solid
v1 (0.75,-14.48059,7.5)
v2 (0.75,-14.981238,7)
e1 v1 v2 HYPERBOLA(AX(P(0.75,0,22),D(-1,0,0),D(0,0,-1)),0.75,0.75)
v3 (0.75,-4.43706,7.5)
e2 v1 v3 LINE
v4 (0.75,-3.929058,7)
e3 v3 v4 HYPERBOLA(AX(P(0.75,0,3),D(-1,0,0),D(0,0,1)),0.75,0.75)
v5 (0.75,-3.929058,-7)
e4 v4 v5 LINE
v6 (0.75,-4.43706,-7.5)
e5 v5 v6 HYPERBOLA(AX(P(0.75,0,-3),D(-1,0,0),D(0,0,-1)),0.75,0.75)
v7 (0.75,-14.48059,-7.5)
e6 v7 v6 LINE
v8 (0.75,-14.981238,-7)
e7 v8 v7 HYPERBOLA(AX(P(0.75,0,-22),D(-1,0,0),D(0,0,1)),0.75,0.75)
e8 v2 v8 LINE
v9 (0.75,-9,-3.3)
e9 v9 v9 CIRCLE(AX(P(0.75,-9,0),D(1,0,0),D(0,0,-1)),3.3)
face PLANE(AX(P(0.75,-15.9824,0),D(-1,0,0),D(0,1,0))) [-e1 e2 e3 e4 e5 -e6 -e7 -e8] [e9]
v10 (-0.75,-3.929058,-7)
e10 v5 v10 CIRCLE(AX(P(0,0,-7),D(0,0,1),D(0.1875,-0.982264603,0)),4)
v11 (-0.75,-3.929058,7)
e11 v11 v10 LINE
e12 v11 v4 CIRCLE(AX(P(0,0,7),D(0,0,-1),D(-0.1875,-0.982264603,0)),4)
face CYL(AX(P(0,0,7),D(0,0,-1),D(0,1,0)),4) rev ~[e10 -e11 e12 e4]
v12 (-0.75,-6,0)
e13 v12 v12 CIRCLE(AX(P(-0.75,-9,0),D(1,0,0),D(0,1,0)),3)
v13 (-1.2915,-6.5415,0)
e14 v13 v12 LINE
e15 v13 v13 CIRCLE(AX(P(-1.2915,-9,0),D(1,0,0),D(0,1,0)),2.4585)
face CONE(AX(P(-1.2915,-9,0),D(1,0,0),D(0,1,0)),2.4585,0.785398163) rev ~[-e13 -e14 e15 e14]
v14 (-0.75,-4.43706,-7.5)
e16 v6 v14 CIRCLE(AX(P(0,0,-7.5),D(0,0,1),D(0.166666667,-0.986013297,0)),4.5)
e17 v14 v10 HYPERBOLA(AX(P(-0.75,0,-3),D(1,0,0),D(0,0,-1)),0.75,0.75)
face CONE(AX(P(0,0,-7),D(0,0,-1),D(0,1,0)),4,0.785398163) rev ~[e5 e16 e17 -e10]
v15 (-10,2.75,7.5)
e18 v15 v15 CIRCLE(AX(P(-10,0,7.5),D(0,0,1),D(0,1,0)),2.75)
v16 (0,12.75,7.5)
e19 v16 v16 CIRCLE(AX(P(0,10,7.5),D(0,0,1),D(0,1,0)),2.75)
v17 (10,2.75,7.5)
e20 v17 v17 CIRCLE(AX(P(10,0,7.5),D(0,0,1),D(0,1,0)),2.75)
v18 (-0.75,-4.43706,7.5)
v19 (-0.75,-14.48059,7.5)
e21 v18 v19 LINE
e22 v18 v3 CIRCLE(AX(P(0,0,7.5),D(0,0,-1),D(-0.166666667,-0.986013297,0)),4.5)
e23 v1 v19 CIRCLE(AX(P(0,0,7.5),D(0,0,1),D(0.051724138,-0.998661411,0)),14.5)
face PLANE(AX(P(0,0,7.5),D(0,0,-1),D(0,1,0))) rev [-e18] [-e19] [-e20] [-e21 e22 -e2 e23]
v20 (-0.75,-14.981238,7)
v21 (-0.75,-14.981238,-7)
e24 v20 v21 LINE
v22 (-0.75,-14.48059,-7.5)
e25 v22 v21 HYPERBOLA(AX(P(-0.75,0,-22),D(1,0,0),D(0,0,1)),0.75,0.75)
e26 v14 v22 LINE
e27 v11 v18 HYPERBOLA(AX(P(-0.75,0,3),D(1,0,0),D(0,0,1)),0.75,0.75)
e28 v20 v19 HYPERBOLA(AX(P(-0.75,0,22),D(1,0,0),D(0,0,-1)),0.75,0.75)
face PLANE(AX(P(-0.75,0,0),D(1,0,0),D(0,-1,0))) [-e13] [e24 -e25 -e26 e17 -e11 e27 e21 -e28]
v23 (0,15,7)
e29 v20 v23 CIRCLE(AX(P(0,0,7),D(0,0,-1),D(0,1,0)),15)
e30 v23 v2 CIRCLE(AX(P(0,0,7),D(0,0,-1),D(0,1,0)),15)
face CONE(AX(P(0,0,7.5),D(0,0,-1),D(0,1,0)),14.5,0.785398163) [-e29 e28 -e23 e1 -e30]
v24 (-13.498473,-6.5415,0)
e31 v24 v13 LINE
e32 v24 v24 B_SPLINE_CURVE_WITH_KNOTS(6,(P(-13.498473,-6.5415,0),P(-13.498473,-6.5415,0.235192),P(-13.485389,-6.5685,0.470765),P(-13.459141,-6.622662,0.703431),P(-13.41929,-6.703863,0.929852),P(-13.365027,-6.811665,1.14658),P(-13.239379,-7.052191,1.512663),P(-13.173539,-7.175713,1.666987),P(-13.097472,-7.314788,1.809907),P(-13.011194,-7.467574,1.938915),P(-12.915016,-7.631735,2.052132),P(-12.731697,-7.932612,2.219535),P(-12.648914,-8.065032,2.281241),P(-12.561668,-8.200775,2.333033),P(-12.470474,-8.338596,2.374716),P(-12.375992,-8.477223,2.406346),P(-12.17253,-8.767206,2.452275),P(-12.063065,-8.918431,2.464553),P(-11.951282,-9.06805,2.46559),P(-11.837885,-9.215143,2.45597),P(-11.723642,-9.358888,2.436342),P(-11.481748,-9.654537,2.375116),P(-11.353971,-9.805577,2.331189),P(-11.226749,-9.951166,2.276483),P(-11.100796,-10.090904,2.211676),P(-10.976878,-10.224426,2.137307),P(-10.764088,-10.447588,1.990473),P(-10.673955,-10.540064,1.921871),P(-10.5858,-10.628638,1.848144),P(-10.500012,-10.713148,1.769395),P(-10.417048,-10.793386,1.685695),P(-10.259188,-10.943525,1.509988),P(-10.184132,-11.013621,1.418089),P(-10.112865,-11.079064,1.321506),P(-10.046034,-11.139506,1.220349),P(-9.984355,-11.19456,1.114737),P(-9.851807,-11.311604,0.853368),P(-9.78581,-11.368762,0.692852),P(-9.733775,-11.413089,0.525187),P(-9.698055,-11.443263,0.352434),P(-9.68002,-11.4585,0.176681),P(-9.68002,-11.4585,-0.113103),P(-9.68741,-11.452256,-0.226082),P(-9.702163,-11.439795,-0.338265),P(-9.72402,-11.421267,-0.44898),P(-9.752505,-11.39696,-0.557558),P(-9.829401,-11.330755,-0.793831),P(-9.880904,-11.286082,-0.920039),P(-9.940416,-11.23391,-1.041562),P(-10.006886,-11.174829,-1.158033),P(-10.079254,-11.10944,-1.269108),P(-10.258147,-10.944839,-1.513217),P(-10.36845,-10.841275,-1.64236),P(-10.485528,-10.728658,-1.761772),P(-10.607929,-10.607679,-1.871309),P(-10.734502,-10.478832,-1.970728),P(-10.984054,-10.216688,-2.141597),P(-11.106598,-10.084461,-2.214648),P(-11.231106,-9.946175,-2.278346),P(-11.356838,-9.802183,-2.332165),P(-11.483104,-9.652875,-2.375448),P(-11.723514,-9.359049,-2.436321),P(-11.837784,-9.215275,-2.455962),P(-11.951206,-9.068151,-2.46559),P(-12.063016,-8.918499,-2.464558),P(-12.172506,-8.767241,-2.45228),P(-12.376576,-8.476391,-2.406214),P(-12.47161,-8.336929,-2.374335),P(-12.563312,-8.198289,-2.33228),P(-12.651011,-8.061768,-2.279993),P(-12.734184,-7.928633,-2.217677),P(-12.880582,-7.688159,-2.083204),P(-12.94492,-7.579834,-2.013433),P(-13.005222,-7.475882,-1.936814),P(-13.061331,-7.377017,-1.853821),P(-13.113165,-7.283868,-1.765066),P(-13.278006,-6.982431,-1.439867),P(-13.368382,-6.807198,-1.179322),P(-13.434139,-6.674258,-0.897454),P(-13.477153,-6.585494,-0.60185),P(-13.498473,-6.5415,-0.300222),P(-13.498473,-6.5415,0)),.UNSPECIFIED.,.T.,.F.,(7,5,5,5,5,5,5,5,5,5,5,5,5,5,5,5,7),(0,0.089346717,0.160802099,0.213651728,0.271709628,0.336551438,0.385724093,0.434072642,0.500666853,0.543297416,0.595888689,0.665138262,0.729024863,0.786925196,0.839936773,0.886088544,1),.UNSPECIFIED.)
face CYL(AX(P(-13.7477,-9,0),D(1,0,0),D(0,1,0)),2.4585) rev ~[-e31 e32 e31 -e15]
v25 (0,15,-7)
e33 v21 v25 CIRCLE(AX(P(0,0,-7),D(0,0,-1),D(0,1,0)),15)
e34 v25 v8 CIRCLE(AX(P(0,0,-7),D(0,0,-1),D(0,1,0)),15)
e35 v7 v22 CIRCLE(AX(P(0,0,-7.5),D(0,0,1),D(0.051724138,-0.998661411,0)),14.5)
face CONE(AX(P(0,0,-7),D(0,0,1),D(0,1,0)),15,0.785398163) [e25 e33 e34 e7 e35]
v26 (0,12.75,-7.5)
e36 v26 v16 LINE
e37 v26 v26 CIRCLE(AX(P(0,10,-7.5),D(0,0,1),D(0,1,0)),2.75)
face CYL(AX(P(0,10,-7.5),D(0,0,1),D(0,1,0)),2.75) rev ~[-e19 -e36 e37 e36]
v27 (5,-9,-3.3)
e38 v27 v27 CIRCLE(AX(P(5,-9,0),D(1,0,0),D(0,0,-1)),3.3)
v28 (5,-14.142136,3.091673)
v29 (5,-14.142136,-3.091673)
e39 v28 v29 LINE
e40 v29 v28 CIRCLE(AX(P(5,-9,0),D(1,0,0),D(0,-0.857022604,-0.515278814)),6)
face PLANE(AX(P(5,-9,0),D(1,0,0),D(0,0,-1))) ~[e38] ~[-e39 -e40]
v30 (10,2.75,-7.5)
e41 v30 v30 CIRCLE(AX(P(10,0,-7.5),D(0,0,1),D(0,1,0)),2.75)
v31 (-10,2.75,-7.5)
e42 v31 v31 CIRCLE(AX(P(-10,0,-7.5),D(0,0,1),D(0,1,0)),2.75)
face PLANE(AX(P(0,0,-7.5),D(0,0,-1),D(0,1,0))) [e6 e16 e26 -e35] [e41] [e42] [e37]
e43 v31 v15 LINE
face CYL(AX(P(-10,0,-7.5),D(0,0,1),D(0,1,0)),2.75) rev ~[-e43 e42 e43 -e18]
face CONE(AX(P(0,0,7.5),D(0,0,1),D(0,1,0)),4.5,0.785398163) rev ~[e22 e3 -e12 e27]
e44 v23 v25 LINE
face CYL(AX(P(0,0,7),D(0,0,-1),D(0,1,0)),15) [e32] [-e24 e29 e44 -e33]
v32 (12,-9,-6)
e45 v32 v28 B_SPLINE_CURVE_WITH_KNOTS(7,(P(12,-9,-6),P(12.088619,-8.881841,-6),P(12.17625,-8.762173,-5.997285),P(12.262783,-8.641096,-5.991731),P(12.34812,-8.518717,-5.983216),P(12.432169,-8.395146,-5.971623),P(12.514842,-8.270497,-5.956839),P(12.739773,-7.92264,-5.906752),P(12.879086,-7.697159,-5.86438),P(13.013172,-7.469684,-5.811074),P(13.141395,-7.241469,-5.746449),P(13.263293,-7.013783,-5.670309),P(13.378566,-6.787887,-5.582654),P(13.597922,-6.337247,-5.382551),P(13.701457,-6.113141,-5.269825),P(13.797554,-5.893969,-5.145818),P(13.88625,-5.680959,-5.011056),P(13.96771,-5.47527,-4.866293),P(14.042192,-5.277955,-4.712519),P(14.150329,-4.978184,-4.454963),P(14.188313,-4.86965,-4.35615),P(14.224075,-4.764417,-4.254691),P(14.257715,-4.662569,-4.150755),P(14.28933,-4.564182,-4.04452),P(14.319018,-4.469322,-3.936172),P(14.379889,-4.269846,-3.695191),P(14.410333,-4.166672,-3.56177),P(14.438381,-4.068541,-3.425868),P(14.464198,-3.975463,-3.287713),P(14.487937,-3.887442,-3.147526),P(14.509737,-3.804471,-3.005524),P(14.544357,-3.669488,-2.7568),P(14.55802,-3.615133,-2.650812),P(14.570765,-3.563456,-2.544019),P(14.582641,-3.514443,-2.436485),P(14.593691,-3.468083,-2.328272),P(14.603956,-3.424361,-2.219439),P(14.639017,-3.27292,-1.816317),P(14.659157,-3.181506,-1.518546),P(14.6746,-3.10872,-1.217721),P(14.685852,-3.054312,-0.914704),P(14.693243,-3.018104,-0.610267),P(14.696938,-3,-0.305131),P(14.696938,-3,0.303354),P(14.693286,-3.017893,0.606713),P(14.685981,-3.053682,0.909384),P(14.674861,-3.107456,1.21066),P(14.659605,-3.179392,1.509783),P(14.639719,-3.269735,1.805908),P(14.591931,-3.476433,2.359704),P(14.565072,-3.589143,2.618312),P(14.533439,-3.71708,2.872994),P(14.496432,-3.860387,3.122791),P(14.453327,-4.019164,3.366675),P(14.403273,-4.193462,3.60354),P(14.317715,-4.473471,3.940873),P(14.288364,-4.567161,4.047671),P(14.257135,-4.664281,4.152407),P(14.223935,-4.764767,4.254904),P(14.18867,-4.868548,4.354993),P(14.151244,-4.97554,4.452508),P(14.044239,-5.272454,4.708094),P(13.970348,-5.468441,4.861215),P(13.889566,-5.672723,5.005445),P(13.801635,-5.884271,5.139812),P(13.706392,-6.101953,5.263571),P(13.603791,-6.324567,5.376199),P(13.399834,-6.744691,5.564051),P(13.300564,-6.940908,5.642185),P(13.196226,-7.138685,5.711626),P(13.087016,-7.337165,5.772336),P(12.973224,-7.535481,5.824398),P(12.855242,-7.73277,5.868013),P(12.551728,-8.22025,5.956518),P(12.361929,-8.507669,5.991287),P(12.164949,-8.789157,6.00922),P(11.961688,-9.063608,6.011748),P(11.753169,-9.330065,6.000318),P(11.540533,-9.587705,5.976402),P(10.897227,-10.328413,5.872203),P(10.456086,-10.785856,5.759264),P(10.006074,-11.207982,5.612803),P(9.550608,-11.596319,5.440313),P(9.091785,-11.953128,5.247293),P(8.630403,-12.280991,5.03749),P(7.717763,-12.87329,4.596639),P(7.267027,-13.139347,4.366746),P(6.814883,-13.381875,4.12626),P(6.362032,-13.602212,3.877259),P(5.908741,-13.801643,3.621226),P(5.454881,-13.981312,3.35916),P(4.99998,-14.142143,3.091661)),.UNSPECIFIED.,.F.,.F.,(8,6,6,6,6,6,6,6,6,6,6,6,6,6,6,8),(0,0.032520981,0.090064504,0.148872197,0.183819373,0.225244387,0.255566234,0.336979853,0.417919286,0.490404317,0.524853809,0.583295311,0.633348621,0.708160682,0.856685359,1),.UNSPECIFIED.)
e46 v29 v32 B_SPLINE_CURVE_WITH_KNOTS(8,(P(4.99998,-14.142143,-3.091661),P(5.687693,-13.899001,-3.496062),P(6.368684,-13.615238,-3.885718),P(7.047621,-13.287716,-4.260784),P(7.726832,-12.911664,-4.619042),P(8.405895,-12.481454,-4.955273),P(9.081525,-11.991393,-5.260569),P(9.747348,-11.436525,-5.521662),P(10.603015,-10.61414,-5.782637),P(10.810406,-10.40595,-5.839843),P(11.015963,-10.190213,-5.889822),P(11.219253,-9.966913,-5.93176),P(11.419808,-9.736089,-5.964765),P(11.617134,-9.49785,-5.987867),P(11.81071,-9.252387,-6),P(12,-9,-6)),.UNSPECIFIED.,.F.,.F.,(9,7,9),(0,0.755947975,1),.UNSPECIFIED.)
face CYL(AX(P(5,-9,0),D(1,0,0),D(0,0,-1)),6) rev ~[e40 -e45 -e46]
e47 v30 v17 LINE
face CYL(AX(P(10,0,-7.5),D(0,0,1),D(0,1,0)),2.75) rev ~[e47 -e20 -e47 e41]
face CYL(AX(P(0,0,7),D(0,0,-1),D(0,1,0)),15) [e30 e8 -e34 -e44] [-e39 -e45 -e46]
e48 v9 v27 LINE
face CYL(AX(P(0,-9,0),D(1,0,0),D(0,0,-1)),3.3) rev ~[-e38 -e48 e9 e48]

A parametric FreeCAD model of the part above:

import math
import FreeCAD as App
import Part
import Sketcher
Q = App.Units.Quantity

doc = App.newDocument("Part")
body = doc.addObject("PartDesign::Body", "Body")

# Sketch on YZ plane
sketch1 = body.newObject("Sketcher::SketchObject", "Sketch")
sketch1.AttachmentSupport = (doc.getObject("YZ_Plane"), [""])
sketch1.MapMode = "FlatFace"
sketch1.addGeometry([
    Part.LineSegment(App.Vector(0, 7.5, 0), App.Vector(0, -7.5, 0)),  # 0
    Part.LineSegment(App.Vector(0, -7.5, 0), App.Vector(14.5, -7.5, 0)),  # 1
    Part.LineSegment(App.Vector(14.5, -7.5, 0), App.Vector(15, -7, 0)),  # 2
    Part.LineSegment(App.Vector(15, -7, 0), App.Vector(15, 7, 0)),  # 3
    Part.LineSegment(App.Vector(15, 7, 0), App.Vector(14.5, 7.5, 0)),  # 4
    Part.LineSegment(App.Vector(14.5, 7.5, 0), App.Vector(0, 7.5, 0)),  # 5
], False)
sketch1.addConstraint([
    Sketcher.Constraint("Coincident", 0, 2, 1, 1),
    Sketcher.Constraint("Coincident", 1, 2, 2, 1),
    Sketcher.Constraint("Coincident", 2, 2, 3, 1),
    Sketcher.Constraint("Coincident", 3, 2, 4, 1),
    Sketcher.Constraint("Coincident", 4, 2, 5, 1),
    Sketcher.Constraint("Coincident", 5, 2, 0, 1),
    Sketcher.Constraint("Vertical", 0),
    Sketcher.Constraint("Horizontal", 1),
    Sketcher.Constraint("Vertical", 3),
    Sketcher.Constraint("Horizontal", 5),
    Sketcher.Constraint("Symmetric", 0, 2, 5, 2, -1, 1),
    Sketcher.Constraint("Perpendicular", 2, 4),
    Sketcher.Constraint("Vertical", 1, 2, 4, 2),
    Sketcher.Constraint("Equal", 2, 4),
    Sketcher.Constraint("DistanceY", 0, 2, 0, 1, 15.0),
    Sketcher.Constraint("DistanceY", 3, 1, 3, 2, 14.0),
    Sketcher.Constraint("DistanceX", 1, 1, 1, 2, 14.5),
])
revolution = body.newObject("PartDesign::Revolution", "Revolution")
revolution.Profile = sketch1
revolution.ReferenceAxis = (sketch1, ["V_Axis"])
revolution.Angle = 360

# Sketch on YZ plane
sketch2 = body.newObject("Sketcher::SketchObject", "Sketch001")
sketch2.AttachmentSupport = (doc.getObject("YZ_Plane"), [""])
sketch2.MapMode = "FlatFace"
sketch2.addGeometry([
    Part.LineSegment(App.Vector(0, 7.5, 0), App.Vector(0, -7.5, 0)),  # 0
    Part.LineSegment(App.Vector(0, -7.5, 0), App.Vector(4.5, -7.5, 0)),  # 1
    Part.LineSegment(App.Vector(4.5, -7.5, 0), App.Vector(4, -7, 0)),  # 2
    Part.LineSegment(App.Vector(4, -7, 0), App.Vector(4, 7, 0)),  # 3
    Part.LineSegment(App.Vector(4, 7, 0), App.Vector(4.5, 7.5, 0)),  # 4
    Part.LineSegment(App.Vector(4.5, 7.5, 0), App.Vector(0, 7.5, 0)),  # 5
], False)
sketch2.addConstraint([
    Sketcher.Constraint("Coincident", 0, 2, 1, 1),
    Sketcher.Constraint("Coincident", 1, 2, 2, 1),
    Sketcher.Constraint("Coincident", 2, 2, 3, 1),
    Sketcher.Constraint("Coincident", 3, 2, 4, 1),
    Sketcher.Constraint("Coincident", 4, 2, 5, 1),
    Sketcher.Constraint("Coincident", 5, 2, 0, 1),
    Sketcher.Constraint("Vertical", 0),
    Sketcher.Constraint("Horizontal", 1),
    Sketcher.Constraint("Vertical", 3),
    Sketcher.Constraint("Horizontal", 5),
    Sketcher.Constraint("Symmetric", 0, 2, 5, 2, -1, 1),
    Sketcher.Constraint("Perpendicular", 2, 4),
    Sketcher.Constraint("Vertical", 1, 2, 4, 2),
    Sketcher.Constraint("Equal", 2, 4),
    Sketcher.Constraint("DistanceY", 0, 2, 0, 1, 15.0),
    Sketcher.Constraint("DistanceY", 3, 1, 3, 2, 14.0),
    Sketcher.Constraint("DistanceX", 1, 1, 1, 2, 4.5),
])
groove = body.newObject("PartDesign::Groove", "Groove")
groove.Profile = sketch2
groove.ReferenceAxis = (sketch2, ["V_Axis"])
groove.Angle = 360

# Sketch on XY plane
sketch3 = body.newObject("Sketcher::SketchObject", "Sketch002")
sketch3.AttachmentSupport = (doc.getObject("XY_Plane"), [""])
sketch3.MapMode = "FlatFace"
sketch3.addGeometry([
    Part.LineSegment(App.Vector(-0.8, 0, 0), App.Vector(-0.8, -16, 0)),
    Part.ArcOfCircle(Part.Circle(App.Vector(0, 0, 0), App.Vector(0, 0, 1), 16), math.radians(-92.69), math.radians(-87.31)),
    Part.LineSegment(App.Vector(0.8, -16, 0), App.Vector(0.8, 0, 0)),
    Part.LineSegment(App.Vector(0.8, 0, 0), App.Vector(-0.8, 0, 0)),
], False)
sketch3.addConstraint([
    Sketcher.Constraint("Coincident", 0, 2, 1, 1),
    Sketcher.Constraint("Coincident", 1, 2, 2, 1),
    Sketcher.Constraint("Coincident", 2, 2, 3, 1),
    Sketcher.Constraint("Coincident", 3, 2, 0, 1),
    Sketcher.Constraint("Vertical", 0),
    Sketcher.Constraint("Vertical", 2),
    Sketcher.Constraint("Horizontal", 3),
    Sketcher.Constraint("Coincident", 1, 3, -1, 1),
    Sketcher.Constraint("Symmetric", 2, 2, 3, 2, -1, 1),
    Sketcher.Constraint("Radius", 1, 16.0),
    Sketcher.Constraint("DistanceX", 3, 2, 3, 1, 1.5),
])
pocket1 = body.newObject("PartDesign::Pocket", "Pocket")
pocket1.Profile = sketch3
pocket1.Length = 15
pocket1.Midplane = True

# Sketch on XY plane
sketch4 = body.newObject("Sketcher::SketchObject", "Sketch003")
sketch4.AttachmentSupport = (doc.getObject("XY_Plane"), [""])
sketch4.MapMode = "FlatFace"
sketch4.AttachmentOffset = App.Placement(App.Vector(0, 0, -7.5), App.Rotation())
sketch4.addGeometry(Part.Circle(App.Vector(10, 0, 0), App.Vector(0, 0, 1), 2.8), False)
sketch4.addConstraint([
    Sketcher.Constraint("PointOnObject", 0, 3, -1),
    Sketcher.Constraint("Diameter", 0, 5.5),
    Sketcher.Constraint("DistanceX", -1, 1, 0, 3, 10.0),
])
doc.recompute()
hole = body.newObject("PartDesign::Hole", "Hole")
hole.Profile = sketch4
hole.ThreadType = "None"
hole.Diameter = 5.5
hole.DepthType = "Dimension"
hole.Depth = 15
hole.DrillPoint = "Flat"
hole.Reversed = True

# Sketch on XY plane
sketch5 = body.newObject("Sketcher::SketchObject", "Sketch004")
sketch5.AttachmentSupport = (doc.getObject("XY_Plane"), [""])
sketch5.MapMode = "FlatFace"
sketch5.AttachmentOffset = App.Placement(App.Vector(0, 0, -7.5), App.Rotation())
sketch5.addGeometry(Part.Circle(App.Vector(-10, 0, 0), App.Vector(0, 0, 1), 2.8), False)
sketch5.addConstraint([
    Sketcher.Constraint("PointOnObject", 0, 3, -1),
    Sketcher.Constraint("Diameter", 0, 5.5),
    Sketcher.Constraint("DistanceX", 0, 3, -1, 1, 10.0),
])
doc.recompute()
hole2 = body.newObject("PartDesign::Hole", "Hole001")
hole2.Profile = sketch5
hole2.ThreadType = "None"
hole2.Diameter = 5.5
hole2.DepthType = "Dimension"
hole2.Depth = 15
hole2.DrillPoint = "Flat"
hole2.Reversed = True

# Sketch on XY plane
sketch6 = body.newObject("Sketcher::SketchObject", "Sketch005")
sketch6.AttachmentSupport = (doc.getObject("XY_Plane"), [""])
sketch6.MapMode = "FlatFace"
sketch6.AttachmentOffset = App.Placement(App.Vector(0, 0, -7.5), App.Rotation())
sketch6.addGeometry(Part.Circle(App.Vector(0, 10, 0), App.Vector(0, 0, 1), 2.8), False)
sketch6.addConstraint([
    Sketcher.Constraint("PointOnObject", 0, 3, -2),
    Sketcher.Constraint("Diameter", 0, 5.5),
    Sketcher.Constraint("DistanceY", -1, 1, 0, 3, 10.0),
])
doc.recompute()
hole3 = body.newObject("PartDesign::Hole", "Hole002")
hole3.Profile = sketch6
hole3.ThreadType = "None"
hole3.Diameter = 5.5
hole3.DepthType = "Dimension"
hole3.Depth = 15
hole3.DrillPoint = "Flat"
hole3.Reversed = True

# Sketch on XZ plane
sketch7 = body.newObject("Sketcher::SketchObject", "Sketch006")
sketch7.AttachmentSupport = (doc.getObject("XZ_Plane"), [""])
sketch7.MapMode = "FlatFace"
sketch7.AttachmentOffset = App.Placement(App.Vector(0, 0, 9), App.Rotation())
sketch7.addGeometry([
    Part.LineSegment(App.Vector(0, 0, 0), App.Vector(15, 0, 0)),  # 0
    Part.LineSegment(App.Vector(15, 0, 0), App.Vector(15, -6, 0)),  # 1
    Part.LineSegment(App.Vector(15, -6, 0), App.Vector(5, -6, 0)),  # 2
    Part.LineSegment(App.Vector(5, -6, 0), App.Vector(5, -3.3, 0)),  # 3
    Part.LineSegment(App.Vector(5, -3.3, 0), App.Vector(0, -3.3, 0)),  # 4
    Part.LineSegment(App.Vector(0, -3.3, 0), App.Vector(0, 0, 0)),  # 5
], False)
sketch7.addConstraint([
    Sketcher.Constraint("Coincident", 0, 2, 1, 1),
    Sketcher.Constraint("Coincident", 1, 2, 2, 1),
    Sketcher.Constraint("Coincident", 2, 2, 3, 1),
    Sketcher.Constraint("Coincident", 3, 2, 4, 1),
    Sketcher.Constraint("Coincident", 4, 2, 5, 1),
    Sketcher.Constraint("Coincident", 5, 2, 0, 1),
    Sketcher.Constraint("Horizontal", 0),
    Sketcher.Constraint("Vertical", 1),
    Sketcher.Constraint("Horizontal", 2),
    Sketcher.Constraint("Vertical", 3),
    Sketcher.Constraint("Horizontal", 4),
    Sketcher.Constraint("Vertical", 5),
    Sketcher.Constraint("Coincident", 5, 2, -1, 1),
    Sketcher.Constraint("DistanceX", 0, 1, 0, 2, 15.0),
    Sketcher.Constraint("DistanceX", 2, 2, 2, 1, 10.0),
    Sketcher.Constraint("DistanceY", 1, 2, 1, 1, 6.0),
    Sketcher.Constraint("DistanceY", 3, 1, 3, 2, 2.7),
])
groove2 = body.newObject("PartDesign::Groove", "Groove001")
groove2.Profile = sketch7
groove2.ReferenceAxis = (sketch7, ["H_Axis"])
groove2.Angle = 360

# Sketch on XY plane
sketch8 = body.newObject("Sketcher::SketchObject", "Sketch007")
sketch8.AttachmentSupport = (doc.getObject("XY_Plane"), [""])
sketch8.MapMode = "FlatFace"
sketch8.addGeometry([
    Part.LineSegment(App.Vector(-13.7, -9, 0), App.Vector(-0.8, -9, 0)),  # 0
    Part.LineSegment(App.Vector(-0.8, -9, 0), App.Vector(-0.8, -6, 0)),  # 1
    Part.LineSegment(App.Vector(-0.8, -6, 0), App.Vector(-1.3, -6.5, 0)),  # 2
    Part.LineSegment(App.Vector(-1.3, -6.5, 0), App.Vector(-13.7, -6.5, 0)),  # 3
    Part.LineSegment(App.Vector(-13.7, -6.5, 0), App.Vector(-13.7, -9, 0)),  # 4
], False)
sketch8.addGeometry(Part.LineSegment(App.Vector(-13.7, -9, 0), App.Vector(-0.8, -9, 0)), True)  # axis
sketch8.addConstraint([
    Sketcher.Constraint("Coincident", 0, 2, 1, 1),
    Sketcher.Constraint("Coincident", 1, 2, 2, 1),
    Sketcher.Constraint("Coincident", 2, 2, 3, 1),
    Sketcher.Constraint("Coincident", 3, 2, 4, 1),
    Sketcher.Constraint("Coincident", 4, 2, 0, 1),
    Sketcher.Constraint("Horizontal", 0),
    Sketcher.Constraint("Vertical", 1),
    Sketcher.Constraint("Horizontal", 3),
    Sketcher.Constraint("Vertical", 4),
    Sketcher.Constraint("Horizontal", 5),
    Sketcher.Constraint("Coincident", 5, 1, 4, 2),
    Sketcher.Constraint("Vertical", 1, 2, 5, 2),
    Sketcher.Constraint("DistanceY", 1, 1, 1, 2, 3.0),
    Sketcher.Constraint("Angle", 2, Q("-135 deg")),
    Sketcher.Constraint("DistanceY", 0, 2, -1, 1, 9.0),
    Sketcher.Constraint("DistanceX", 0, 2, -1, 1, 0.75),
    Sketcher.Constraint("DistanceX", 0, 1, 0, 2, 12.9977),
    Sketcher.Constraint("DistanceX", 3, 2, 3, 1, 12.4562),
])
groove3 = body.newObject("PartDesign::Groove", "Groove002")
groove3.Profile = sketch8
groove3.ReferenceAxis = (sketch8, ["Axis0"])
groove3.Angle = 360

doc.recompute()
